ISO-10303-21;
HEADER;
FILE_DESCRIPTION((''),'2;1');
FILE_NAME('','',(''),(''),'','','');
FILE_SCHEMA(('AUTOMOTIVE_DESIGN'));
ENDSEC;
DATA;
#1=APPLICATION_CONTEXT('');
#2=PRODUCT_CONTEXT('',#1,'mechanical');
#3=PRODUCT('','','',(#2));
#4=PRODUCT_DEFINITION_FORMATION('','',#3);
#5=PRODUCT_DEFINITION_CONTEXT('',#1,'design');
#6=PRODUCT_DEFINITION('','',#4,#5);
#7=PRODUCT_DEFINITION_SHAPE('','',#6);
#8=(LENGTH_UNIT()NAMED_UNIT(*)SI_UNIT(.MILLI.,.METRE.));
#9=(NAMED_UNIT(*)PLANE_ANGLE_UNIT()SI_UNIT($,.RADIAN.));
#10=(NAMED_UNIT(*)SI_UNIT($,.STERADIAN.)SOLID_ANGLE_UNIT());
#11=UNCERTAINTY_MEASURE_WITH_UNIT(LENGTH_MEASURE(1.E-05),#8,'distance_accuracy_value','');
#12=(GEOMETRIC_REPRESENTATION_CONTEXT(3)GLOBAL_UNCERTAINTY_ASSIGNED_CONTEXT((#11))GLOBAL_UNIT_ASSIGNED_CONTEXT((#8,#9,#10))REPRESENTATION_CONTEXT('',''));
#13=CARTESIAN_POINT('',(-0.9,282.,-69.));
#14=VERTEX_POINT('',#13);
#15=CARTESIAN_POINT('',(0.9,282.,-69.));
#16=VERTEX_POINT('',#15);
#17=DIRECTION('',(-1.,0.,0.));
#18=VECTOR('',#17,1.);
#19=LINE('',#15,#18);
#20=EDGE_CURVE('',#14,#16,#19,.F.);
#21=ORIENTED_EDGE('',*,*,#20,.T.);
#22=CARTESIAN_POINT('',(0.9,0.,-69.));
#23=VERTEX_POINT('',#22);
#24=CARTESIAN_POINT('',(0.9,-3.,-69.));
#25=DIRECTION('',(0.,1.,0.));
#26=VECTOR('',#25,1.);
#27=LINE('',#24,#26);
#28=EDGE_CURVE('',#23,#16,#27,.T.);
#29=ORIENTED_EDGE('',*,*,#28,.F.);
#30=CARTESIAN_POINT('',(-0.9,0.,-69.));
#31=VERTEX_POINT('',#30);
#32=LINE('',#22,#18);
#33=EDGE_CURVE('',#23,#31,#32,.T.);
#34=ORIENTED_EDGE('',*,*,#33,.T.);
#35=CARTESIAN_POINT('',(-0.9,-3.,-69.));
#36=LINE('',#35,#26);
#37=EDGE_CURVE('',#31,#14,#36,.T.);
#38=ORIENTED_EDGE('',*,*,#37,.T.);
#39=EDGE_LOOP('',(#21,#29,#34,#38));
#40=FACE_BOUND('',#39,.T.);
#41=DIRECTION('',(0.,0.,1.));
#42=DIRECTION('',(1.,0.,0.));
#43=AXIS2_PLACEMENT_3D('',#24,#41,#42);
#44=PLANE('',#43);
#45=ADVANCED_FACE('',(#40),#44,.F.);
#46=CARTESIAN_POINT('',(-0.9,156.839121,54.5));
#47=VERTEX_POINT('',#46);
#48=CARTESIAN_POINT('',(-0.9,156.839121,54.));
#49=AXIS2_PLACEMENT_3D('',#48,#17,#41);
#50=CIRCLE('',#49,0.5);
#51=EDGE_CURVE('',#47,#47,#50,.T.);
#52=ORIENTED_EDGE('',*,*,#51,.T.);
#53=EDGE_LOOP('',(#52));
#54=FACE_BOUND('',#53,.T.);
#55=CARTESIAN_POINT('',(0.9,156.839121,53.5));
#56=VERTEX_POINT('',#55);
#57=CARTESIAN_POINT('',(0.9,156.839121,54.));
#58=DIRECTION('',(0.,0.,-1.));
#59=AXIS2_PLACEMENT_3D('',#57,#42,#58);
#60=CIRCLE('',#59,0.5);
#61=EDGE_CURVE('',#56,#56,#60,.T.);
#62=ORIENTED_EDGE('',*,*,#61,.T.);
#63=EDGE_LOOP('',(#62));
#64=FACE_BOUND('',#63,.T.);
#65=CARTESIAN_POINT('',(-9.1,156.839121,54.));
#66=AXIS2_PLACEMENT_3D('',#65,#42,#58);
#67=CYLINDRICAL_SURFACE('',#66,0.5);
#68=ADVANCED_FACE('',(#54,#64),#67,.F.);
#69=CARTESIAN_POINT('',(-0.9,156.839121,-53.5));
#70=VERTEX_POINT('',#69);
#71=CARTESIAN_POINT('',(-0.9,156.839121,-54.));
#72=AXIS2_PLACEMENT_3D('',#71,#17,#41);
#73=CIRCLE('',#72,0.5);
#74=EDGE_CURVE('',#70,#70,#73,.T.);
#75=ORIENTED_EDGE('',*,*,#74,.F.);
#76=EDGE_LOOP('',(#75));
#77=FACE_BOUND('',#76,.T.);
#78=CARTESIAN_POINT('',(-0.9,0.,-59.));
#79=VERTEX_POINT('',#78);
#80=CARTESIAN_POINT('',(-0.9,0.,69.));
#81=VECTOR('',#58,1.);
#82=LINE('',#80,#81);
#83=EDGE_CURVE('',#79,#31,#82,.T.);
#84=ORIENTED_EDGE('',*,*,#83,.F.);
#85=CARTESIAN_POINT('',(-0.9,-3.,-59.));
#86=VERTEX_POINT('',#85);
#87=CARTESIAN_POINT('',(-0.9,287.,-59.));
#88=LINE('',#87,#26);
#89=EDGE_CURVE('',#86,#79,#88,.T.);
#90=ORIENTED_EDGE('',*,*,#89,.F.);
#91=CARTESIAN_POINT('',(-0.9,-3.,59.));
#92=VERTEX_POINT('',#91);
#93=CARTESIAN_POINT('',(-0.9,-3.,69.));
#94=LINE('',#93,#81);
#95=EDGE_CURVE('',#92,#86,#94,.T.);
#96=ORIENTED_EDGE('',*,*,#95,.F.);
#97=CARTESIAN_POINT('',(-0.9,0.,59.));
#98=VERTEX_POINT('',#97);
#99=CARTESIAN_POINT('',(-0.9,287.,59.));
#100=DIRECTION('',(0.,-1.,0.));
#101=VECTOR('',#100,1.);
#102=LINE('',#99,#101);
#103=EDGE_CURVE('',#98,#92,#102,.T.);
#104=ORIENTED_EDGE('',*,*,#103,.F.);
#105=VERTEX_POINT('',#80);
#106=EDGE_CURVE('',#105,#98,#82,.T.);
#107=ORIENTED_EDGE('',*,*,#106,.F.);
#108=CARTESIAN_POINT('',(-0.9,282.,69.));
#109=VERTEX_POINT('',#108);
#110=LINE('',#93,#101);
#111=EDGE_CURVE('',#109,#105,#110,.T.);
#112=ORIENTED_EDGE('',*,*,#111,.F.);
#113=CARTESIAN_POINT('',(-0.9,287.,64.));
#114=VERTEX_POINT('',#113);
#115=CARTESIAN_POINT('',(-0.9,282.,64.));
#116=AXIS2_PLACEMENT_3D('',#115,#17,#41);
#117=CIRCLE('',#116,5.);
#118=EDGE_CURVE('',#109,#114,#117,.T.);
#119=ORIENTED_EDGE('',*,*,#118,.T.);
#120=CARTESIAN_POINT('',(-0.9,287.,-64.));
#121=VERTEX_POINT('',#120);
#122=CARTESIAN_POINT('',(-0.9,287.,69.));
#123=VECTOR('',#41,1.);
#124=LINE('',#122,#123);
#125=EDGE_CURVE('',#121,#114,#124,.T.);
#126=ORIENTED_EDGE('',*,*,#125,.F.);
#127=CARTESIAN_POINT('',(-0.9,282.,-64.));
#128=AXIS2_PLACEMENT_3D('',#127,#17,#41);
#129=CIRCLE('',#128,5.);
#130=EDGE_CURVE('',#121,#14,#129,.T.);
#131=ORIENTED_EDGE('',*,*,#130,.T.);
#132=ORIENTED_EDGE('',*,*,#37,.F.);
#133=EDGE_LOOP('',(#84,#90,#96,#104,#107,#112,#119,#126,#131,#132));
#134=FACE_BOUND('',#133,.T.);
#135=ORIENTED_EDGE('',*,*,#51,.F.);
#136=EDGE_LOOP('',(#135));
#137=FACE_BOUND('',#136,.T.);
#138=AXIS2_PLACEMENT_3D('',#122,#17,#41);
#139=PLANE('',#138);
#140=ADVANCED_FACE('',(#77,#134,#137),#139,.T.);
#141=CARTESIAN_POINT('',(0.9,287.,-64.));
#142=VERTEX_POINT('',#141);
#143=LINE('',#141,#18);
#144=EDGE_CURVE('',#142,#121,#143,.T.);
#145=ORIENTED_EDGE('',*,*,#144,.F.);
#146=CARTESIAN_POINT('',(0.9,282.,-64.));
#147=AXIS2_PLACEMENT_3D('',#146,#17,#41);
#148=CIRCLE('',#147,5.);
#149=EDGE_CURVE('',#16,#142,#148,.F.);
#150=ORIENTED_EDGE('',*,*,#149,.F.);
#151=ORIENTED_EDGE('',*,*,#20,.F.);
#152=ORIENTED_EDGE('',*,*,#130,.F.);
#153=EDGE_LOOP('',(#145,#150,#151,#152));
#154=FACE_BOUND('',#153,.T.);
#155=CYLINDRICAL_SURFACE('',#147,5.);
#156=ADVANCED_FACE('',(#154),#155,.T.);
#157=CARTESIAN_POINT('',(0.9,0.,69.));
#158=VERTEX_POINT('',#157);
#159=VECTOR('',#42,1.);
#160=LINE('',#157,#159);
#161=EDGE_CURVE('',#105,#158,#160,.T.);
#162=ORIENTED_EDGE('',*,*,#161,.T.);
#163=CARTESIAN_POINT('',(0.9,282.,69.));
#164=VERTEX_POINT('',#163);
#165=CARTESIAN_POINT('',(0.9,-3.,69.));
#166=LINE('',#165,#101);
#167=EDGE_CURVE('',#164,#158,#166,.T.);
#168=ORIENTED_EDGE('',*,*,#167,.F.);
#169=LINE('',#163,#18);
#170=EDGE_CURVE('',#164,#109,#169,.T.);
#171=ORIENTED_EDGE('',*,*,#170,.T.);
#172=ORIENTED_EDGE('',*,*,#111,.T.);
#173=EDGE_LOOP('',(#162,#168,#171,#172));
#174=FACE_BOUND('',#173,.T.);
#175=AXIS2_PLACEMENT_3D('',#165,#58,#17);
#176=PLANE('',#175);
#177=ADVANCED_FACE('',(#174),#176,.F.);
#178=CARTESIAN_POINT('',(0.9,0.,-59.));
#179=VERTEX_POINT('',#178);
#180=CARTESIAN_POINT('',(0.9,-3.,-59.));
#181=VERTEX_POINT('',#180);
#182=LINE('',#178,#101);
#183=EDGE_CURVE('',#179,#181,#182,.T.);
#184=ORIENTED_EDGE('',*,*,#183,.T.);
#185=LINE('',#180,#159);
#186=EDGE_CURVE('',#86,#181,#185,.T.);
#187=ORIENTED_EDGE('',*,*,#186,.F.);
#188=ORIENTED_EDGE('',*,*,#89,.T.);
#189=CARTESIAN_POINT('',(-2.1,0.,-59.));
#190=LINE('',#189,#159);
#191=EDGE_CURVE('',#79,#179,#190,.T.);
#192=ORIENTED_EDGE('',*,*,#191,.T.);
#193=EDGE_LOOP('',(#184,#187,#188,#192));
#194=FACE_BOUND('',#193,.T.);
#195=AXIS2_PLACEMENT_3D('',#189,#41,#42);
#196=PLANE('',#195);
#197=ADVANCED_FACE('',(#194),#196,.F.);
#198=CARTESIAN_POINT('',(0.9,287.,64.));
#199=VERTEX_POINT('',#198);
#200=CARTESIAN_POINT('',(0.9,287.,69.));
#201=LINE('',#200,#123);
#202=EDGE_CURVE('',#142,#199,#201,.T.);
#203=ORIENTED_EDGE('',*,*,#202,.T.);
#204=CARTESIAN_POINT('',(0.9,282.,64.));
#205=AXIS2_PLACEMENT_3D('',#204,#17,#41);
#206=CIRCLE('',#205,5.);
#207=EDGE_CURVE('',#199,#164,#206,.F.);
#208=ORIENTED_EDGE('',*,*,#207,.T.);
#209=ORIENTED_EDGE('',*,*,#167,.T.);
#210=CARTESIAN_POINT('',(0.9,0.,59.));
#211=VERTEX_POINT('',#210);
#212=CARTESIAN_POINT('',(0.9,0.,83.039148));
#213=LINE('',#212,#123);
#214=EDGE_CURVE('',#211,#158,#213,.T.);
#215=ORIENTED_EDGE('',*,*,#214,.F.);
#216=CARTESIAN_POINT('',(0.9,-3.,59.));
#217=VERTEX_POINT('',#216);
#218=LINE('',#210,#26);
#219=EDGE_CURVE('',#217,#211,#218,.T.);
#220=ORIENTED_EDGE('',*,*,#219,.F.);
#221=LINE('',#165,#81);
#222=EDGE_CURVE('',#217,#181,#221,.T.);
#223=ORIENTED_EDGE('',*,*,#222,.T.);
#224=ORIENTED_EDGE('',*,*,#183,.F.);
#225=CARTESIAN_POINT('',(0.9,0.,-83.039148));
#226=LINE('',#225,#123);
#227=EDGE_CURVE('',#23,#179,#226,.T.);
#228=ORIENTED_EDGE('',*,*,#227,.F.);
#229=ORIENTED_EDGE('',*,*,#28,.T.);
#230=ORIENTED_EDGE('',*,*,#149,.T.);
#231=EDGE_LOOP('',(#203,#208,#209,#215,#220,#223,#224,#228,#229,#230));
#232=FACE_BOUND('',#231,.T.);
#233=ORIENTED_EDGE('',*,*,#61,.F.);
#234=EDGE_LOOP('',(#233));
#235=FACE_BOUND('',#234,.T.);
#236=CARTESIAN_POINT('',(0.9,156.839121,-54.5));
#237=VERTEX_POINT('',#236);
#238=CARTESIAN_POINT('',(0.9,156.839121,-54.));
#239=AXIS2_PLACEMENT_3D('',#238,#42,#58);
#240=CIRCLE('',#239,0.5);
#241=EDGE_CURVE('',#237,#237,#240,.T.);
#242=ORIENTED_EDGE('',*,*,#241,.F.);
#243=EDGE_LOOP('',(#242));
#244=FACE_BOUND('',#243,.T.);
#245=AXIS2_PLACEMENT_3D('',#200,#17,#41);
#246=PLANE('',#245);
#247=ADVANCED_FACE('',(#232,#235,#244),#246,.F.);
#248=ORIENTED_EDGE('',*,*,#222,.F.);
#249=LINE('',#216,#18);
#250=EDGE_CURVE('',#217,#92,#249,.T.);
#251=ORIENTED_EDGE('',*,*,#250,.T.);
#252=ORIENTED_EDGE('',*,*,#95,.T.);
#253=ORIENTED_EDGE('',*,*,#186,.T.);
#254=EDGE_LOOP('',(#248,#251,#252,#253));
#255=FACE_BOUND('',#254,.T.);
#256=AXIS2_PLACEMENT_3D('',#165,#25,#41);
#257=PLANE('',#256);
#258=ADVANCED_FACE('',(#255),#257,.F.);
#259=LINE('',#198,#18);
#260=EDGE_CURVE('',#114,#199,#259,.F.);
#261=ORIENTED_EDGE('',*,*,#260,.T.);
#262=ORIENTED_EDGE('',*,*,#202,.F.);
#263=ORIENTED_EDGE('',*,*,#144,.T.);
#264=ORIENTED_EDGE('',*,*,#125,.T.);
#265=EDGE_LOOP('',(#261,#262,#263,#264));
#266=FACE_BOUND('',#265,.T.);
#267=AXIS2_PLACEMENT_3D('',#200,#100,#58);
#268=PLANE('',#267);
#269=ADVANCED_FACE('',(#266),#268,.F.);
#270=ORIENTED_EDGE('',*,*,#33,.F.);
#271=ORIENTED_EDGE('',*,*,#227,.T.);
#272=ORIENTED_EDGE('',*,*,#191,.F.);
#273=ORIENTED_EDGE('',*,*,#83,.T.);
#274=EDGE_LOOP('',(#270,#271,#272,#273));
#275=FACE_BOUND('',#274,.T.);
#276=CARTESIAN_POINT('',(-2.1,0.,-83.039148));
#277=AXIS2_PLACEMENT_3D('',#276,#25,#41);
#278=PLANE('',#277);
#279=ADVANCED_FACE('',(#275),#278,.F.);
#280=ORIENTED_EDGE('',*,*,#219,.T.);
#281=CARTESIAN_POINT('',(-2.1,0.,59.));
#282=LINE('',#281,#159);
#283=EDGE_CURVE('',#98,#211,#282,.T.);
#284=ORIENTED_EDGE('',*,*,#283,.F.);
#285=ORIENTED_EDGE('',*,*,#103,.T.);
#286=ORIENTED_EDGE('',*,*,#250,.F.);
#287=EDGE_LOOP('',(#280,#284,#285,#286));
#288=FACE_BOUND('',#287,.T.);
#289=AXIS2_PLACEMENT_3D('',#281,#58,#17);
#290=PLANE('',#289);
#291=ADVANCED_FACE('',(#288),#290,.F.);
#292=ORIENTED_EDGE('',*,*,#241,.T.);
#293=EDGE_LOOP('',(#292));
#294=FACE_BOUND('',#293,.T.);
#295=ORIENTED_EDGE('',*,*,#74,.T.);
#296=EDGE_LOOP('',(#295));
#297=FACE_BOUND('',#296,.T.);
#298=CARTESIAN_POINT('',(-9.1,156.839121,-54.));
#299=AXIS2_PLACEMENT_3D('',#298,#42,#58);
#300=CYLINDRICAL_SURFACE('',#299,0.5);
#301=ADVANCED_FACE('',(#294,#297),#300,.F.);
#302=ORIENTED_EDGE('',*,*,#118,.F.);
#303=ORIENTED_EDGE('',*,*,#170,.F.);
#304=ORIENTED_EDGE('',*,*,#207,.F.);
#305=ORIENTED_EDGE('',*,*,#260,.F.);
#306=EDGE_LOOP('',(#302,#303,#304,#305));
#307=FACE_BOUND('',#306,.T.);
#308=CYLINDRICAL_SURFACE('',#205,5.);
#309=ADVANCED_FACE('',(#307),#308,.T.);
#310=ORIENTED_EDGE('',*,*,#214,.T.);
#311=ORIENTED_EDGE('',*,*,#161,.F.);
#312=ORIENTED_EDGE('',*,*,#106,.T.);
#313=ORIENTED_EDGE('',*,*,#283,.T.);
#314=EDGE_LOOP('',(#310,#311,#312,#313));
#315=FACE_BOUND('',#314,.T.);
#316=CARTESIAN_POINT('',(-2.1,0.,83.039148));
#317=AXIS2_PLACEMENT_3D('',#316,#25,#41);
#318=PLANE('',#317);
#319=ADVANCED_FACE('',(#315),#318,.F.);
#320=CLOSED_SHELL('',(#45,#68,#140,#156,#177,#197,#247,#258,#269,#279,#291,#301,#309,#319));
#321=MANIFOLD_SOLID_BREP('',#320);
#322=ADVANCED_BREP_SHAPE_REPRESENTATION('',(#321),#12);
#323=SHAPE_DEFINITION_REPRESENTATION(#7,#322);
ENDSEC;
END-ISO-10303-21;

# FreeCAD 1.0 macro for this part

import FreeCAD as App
import Part
import Sketcher

V = App.Vector
Q = App.Units.Quantity


def edges_at(feature, points):
    """Names of the edges that pass closest to the given points."""
    edges = feature.Shape.Edges
    near = lambda p: min(range(len(edges)), key=lambda i: edges[i].distToShape(Part.Vertex(*p))[0])
    return sorted({f"Edge{near(p) + 1}" for p in points})


def add_polygon(sketch, points):
    """Adds a closed chain of lines whose ends are joined by coincident constraints."""
    first, n = sketch.GeometryCount, len(points)
    for a, b in zip(points, points[1:] + points[:1]):
        sketch.addGeometry(Part.LineSegment(App.Vector(*a, 0), App.Vector(*b, 0)), False)
    for i in range(n):
        sketch.addConstraint(Sketcher.Constraint("Coincident", first + i, 2, first + (i + 1) % n, 1))

doc = App.newDocument("Part")
body = doc.addObject("PartDesign::Body", "Body")

sketch1 = doc.addObject("Sketcher::SketchObject", "Sketch")
body.addObject(sketch1)
sketch1.AttachmentSupport = (doc.YZ_Plane, [""])
sketch1.MapMode = "FlatFace"
add_polygon(sketch1, [(287, 69), (-3, 69), (-3, -69), (287, -69)])
sketch1.addConstraint([
    Sketcher.Constraint("Horizontal", 0),
    Sketcher.Constraint("Vertical", 1),
    Sketcher.Constraint("Horizontal", 2),
    Sketcher.Constraint("Vertical", 3),
    Sketcher.Constraint("DistanceX", 0, 2, 0, 1, Q("290 mm")),
    Sketcher.Constraint("DistanceY", 1, 2, 1, 1, Q("138 mm")),
    Sketcher.Constraint("DistanceX", 0, 2, -1, 1, Q("3 mm")),
    Sketcher.Constraint("DistanceY", -1, 1, 0, 2, Q("69 mm")),
])
pad1 = doc.addObject("PartDesign::Pad", "Pad")
body.addObject(pad1)
pad1.Profile = sketch1
pad1.Length = 1.8
pad1.Midplane = True

sketch2 = doc.addObject("Sketcher::SketchObject", "Sketch001")
body.addObject(sketch2)
sketch2.AttachmentSupport = (doc.YZ_Plane, [""])
sketch2.MapMode = "FlatFace"
sketch2.AttachmentOffset = App.Placement(V(0, 0, 0.9), App.Rotation())
add_polygon(sketch2, [(0, -59), (-8.338301, -59), (-8.338301, -83.039148), (0, -83.039148)])
add_polygon(sketch2, [(0, 83.039148), (-8.338301, 83.039148), (-8.338301, 59), (0, 59)])
sketch2.addConstraint([
    Sketcher.Constraint("Horizontal", 0),
    Sketcher.Constraint("Vertical", 1),
    Sketcher.Constraint("Horizontal", 2),
    Sketcher.Constraint("Vertical", 3),
    Sketcher.Constraint("Horizontal", 4),
    Sketcher.Constraint("Vertical", 5),
    Sketcher.Constraint("Horizontal", 6),
    Sketcher.Constraint("Vertical", 7),
    Sketcher.Constraint("Symmetric", 3, 2, 6, 2, -1, 1),
    Sketcher.Constraint("Symmetric", 1, 2, 4, 2, -1),
    Sketcher.Constraint("PointOnObject", 2, 2, -2),
    Sketcher.Constraint("DistanceY", 0, 2, -1, 1, Q("59 mm")),
    Sketcher.Constraint("DistanceX", 0, 2, 0, 1, Q("8.338301 mm")),
    Sketcher.Constraint("DistanceY", 1, 2, 1, 1, Q("24.039148 mm")),
])
pocket1 = doc.addObject("PartDesign::Pocket", "Pocket")
body.addObject(pocket1)
pocket1.Profile = sketch2
pocket1.Length = 3

sketch3 = doc.addObject("Sketcher::SketchObject", "Sketch002")
body.addObject(sketch3)
sketch3.AttachmentSupport = (doc.YZ_Plane, [""])
sketch3.MapMode = "FlatFace"
sketch3.AttachmentOffset = App.Placement(V(0, 0, 0.9), App.Rotation())
sketch3.addGeometry([
    Part.Circle(V(156.839121, 54, 0), V(0, 0, 1), 0.5),
    Part.Circle(V(156.839121, -54, 0), V(0, 0, 1), 0.5),
], False)
sketch3.addConstraint([
    Sketcher.Constraint("Equal", 0, 1),
    Sketcher.Constraint("Symmetric", 0, 3, 1, 3, -1),
    Sketcher.Constraint("Diameter", 0, Q("1 mm")),
    Sketcher.Constraint("DistanceY", -1, 1, 0, 3, Q("54 mm")),
    Sketcher.Constraint("DistanceX", -1, 1, 0, 3, Q("156.839121 mm")),
])
pocket2 = doc.addObject("PartDesign::Pocket", "Pocket001")
body.addObject(pocket2)
pocket2.Profile = sketch3
pocket2.Length = 10
doc.recompute()

fillet = doc.addObject("PartDesign::Fillet", "Fillet")
body.addObject(fillet)
fillet.Base = (pocket2, edges_at(pocket2, [(0, 287, 69), (0, 287, -69)]))
fillet.Radius = 5

doc.recompute()
